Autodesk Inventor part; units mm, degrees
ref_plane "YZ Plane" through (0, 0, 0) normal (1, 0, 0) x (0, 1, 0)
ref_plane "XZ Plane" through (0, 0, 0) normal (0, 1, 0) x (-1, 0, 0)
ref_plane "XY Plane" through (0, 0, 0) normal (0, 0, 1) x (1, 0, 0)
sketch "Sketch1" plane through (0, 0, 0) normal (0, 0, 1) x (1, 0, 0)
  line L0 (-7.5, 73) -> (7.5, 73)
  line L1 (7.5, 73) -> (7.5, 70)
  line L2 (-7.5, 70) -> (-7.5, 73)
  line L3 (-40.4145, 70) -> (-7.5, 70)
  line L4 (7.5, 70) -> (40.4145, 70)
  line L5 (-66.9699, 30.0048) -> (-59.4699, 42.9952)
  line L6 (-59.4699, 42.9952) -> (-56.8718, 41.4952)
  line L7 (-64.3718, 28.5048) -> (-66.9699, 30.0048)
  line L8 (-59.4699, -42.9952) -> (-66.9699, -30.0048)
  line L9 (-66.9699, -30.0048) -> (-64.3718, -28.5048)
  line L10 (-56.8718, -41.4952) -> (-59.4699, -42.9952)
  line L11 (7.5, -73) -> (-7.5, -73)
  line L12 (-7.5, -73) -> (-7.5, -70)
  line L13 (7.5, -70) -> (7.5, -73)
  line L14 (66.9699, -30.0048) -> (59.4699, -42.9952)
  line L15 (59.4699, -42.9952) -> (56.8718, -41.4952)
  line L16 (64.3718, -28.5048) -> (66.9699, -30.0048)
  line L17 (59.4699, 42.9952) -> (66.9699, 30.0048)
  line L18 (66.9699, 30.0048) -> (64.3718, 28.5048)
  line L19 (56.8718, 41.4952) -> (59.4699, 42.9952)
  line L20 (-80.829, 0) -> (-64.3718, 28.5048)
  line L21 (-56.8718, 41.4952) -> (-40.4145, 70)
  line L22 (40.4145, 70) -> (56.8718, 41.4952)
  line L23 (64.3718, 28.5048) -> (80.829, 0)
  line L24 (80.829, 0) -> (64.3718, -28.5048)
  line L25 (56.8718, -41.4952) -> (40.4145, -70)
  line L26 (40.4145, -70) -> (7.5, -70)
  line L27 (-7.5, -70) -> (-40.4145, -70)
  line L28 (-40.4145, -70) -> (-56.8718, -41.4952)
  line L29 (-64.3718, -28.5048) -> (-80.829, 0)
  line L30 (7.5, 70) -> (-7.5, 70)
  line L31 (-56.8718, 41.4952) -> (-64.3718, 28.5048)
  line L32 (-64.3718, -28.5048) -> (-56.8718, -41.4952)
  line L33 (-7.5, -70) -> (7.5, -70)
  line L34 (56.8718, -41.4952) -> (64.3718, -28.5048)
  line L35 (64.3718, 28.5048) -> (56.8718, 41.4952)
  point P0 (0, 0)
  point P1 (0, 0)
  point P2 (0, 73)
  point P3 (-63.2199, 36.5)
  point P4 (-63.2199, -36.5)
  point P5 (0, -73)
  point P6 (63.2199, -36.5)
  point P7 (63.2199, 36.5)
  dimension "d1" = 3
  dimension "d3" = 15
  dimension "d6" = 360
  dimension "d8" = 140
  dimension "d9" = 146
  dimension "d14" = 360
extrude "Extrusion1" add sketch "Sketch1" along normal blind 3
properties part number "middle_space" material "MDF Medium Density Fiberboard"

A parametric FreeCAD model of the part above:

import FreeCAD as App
import Part
import Sketcher
from FreeCAD import Vector
Q = App.Units.Quantity

doc = App.newDocument("Part")
params = doc.addObject("Spreadsheet::Sheet", "Params")
for row, (alias, value) in enumerate([
    ("sketch1_width", "15 mm"),
    ("sketch1_height", "3 mm"),
    ("sketch1_length", "3 mm"),
    ("sketch1_length2", "15 mm"),
    ("pad1_length", "3 mm"),
], start=1):
    params.set(f"A{row}", alias)
    params.set(f"B{row}", "=" + value)
    params.setAlias(f"B{row}", alias)

body = doc.addObject("PartDesign::Body", "Body")

# Sketch on XY plane
sketch1 = doc.addObject("Sketcher::SketchObject", "Sketch")
body.addObject(sketch1)
sketch1.AttachmentSupport = (doc.XY_Plane, [""])
sketch1.MapMode = "FlatFace"
sketch1.addGeometry([
    Part.LineSegment(Vector(7.5, 73, 0), Vector(-7.5, 73, 0)),  # 0
    Part.LineSegment(Vector(-7.5, 73, 0), Vector(-7.5, 70, 0)),  # 1
    Part.LineSegment(Vector(-7.5, 70, 0), Vector(-40.4, 70, 0)),  # 2
    Part.LineSegment(Vector(-40.4, 70, 0), Vector(-56.9, 41.5, 0)),  # 3
    Part.LineSegment(Vector(-56.9, 41.5, 0), Vector(-59.5, 43, 0)),  # 4
    Part.LineSegment(Vector(-59.5, 43, 0), Vector(-67, 30, 0)),  # 5
    Part.LineSegment(Vector(-67, 30, 0), Vector(-64.4, 28.5, 0)),  # 6
    Part.LineSegment(Vector(-64.4, 28.5, 0), Vector(-80.8, 0, 0)),  # 7
    Part.LineSegment(Vector(-80.8, 0, 0), Vector(-64.4, -28.5, 0)),  # 8
    Part.LineSegment(Vector(-64.4, -28.5, 0), Vector(-67, -30, 0)),  # 9
    Part.LineSegment(Vector(-67, -30, 0), Vector(-59.5, -43, 0)),  # 10
    Part.LineSegment(Vector(-59.5, -43, 0), Vector(-56.9, -41.5, 0)),  # 11
    Part.LineSegment(Vector(-56.9, -41.5, 0), Vector(-40.4, -70, 0)),  # 12
    Part.LineSegment(Vector(-40.4, -70, 0), Vector(-7.5, -70, 0)),  # 13
    Part.LineSegment(Vector(-7.5, -70, 0), Vector(-7.5, -73, 0)),  # 14
    Part.LineSegment(Vector(-7.5, -73, 0), Vector(7.5, -73, 0)),  # 15
    Part.LineSegment(Vector(7.5, -73, 0), Vector(7.5, -70, 0)),  # 16
    Part.LineSegment(Vector(7.5, -70, 0), Vector(40.4, -70, 0)),  # 17
    Part.LineSegment(Vector(40.4, -70, 0), Vector(56.9, -41.5, 0)),  # 18
    Part.LineSegment(Vector(56.9, -41.5, 0), Vector(59.5, -43, 0)),  # 19
    Part.LineSegment(Vector(59.5, -43, 0), Vector(67, -30, 0)),  # 20
    Part.LineSegment(Vector(67, -30, 0), Vector(64.4, -28.5, 0)),  # 21
    Part.LineSegment(Vector(64.4, -28.5, 0), Vector(80.8, 0, 0)),  # 22
    Part.LineSegment(Vector(80.8, 0, 0), Vector(64.4, 28.5, 0)),  # 23
    Part.LineSegment(Vector(64.4, 28.5, 0), Vector(67, 30, 0)),  # 24
    Part.LineSegment(Vector(67, 30, 0), Vector(59.5, 43, 0)),  # 25
    Part.LineSegment(Vector(59.5, 43, 0), Vector(56.9, 41.5, 0)),  # 26
    Part.LineSegment(Vector(56.9, 41.5, 0), Vector(40.4, 70, 0)),  # 27
    Part.LineSegment(Vector(40.4, 70, 0), Vector(7.5, 70, 0)),  # 28
    Part.LineSegment(Vector(7.5, 70, 0), Vector(7.5, 73, 0)),  # 29
], False)
sketch1.addConstraint([
    Sketcher.Constraint("Coincident", 0, 2, 1, 1),
    Sketcher.Constraint("Coincident", 1, 2, 2, 1),
    Sketcher.Constraint("Coincident", 2, 2, 3, 1),
    Sketcher.Constraint("Coincident", 3, 2, 4, 1),
    Sketcher.Constraint("Coincident", 4, 2, 5, 1),
    Sketcher.Constraint("Coincident", 5, 2, 6, 1),
    Sketcher.Constraint("Coincident", 6, 2, 7, 1),
    Sketcher.Constraint("Coincident", 7, 2, 8, 1),
    Sketcher.Constraint("Coincident", 8, 2, 9, 1),
    Sketcher.Constraint("Coincident", 9, 2, 10, 1),
    Sketcher.Constraint("Coincident", 10, 2, 11, 1),
    Sketcher.Constraint("Coincident", 11, 2, 12, 1),
    Sketcher.Constraint("Coincident", 12, 2, 13, 1),
    Sketcher.Constraint("Coincident", 13, 2, 14, 1),
    Sketcher.Constraint("Coincident", 14, 2, 15, 1),
    Sketcher.Constraint("Coincident", 15, 2, 16, 1),
    Sketcher.Constraint("Coincident", 16, 2, 17, 1),
    Sketcher.Constraint("Coincident", 17, 2, 18, 1),
    Sketcher.Constraint("Coincident", 18, 2, 19, 1),
    Sketcher.Constraint("Coincident", 19, 2, 20, 1),
    Sketcher.Constraint("Coincident", 20, 2, 21, 1),
    Sketcher.Constraint("Coincident", 21, 2, 22, 1),
    Sketcher.Constraint("Coincident", 22, 2, 23, 1),
    Sketcher.Constraint("Coincident", 23, 2, 24, 1),
    Sketcher.Constraint("Coincident", 24, 2, 25, 1),
    Sketcher.Constraint("Coincident", 25, 2, 26, 1),
    Sketcher.Constraint("Coincident", 26, 2, 27, 1),
    Sketcher.Constraint("Coincident", 27, 2, 28, 1),
    Sketcher.Constraint("Coincident", 28, 2, 29, 1),
    Sketcher.Constraint("Coincident", 29, 2, 0, 1),
    Sketcher.Constraint("Horizontal", 0),
    Sketcher.Constraint("Vertical", 1),
    Sketcher.Constraint("Horizontal", 2),
    Sketcher.Constraint("Horizontal", 13),
    Sketcher.Constraint("Vertical", 14),
    Sketcher.Constraint("Horizontal", 15),
    Sketcher.Constraint("Vertical", 16),
    Sketcher.Constraint("Horizontal", 17),
    Sketcher.Constraint("Horizontal", 28),
    Sketcher.Constraint("Vertical", 29),
    Sketcher.Constraint("Symmetric", 0, 2, 15, 2, -1, 1),
    Sketcher.Constraint("Symmetric", 2, 2, 17, 2, -1, 1),
    Sketcher.Constraint("Symmetric", 3, 2, 18, 2, -1, 1),
    Sketcher.Constraint("Symmetric", 4, 2, 19, 2, -1, 1),
    Sketcher.Constraint("Symmetric", 5, 2, 20, 2, -1, 1),
    Sketcher.Constraint("Symmetric", 6, 2, 21, 2, -1, 1),
    Sketcher.Constraint("Symmetric", 7, 2, 22, 2, -1, 1),
    Sketcher.Constraint("Symmetric", 8, 2, 23, 2, -1, 1),
    Sketcher.Constraint("Symmetric", 9, 2, 24, 2, -1, 1),
    Sketcher.Constraint("Symmetric", 10, 2, 25, 2, -1, 1),
    Sketcher.Constraint("Symmetric", 11, 2, 26, 2, -1, 1),
    Sketcher.Constraint("Symmetric", 12, 2, 27, 2, -1, 1),
    Sketcher.Constraint("Symmetric", 13, 2, 16, 2, -2),
    Sketcher.Constraint("Symmetric", 11, 2, 18, 2, -2),
    Sketcher.Constraint("Symmetric", 10, 2, 19, 2, -2),
    Sketcher.Constraint("Symmetric", 9, 2, 20, 2, -2),
    Sketcher.Constraint("Symmetric", 8, 2, 21, 2, -2),
    Sketcher.Constraint("PointOnObject", 7, 2, -1),
    Sketcher.Constraint("Perpendicular", 3, 4),
    Sketcher.Constraint("Perpendicular", 4, 5),
    Sketcher.Constraint("Perpendicular", 5, 6),
    Sketcher.Constraint("Perpendicular", 6, 7),
    Sketcher.Constraint("Perpendicular", 11, 12),
    Sketcher.Constraint("Vertical", 16, 2, 28, 2),
    Sketcher.Constraint("Equal", 4, 6),
    Sketcher.Constraint("Equal", 3, 7),
    Sketcher.Constraint("DistanceX", 0, 2, 0, 1, Q("15 mm")),
    Sketcher.Constraint("DistanceY", 1, 2, 1, 1, Q("3 mm")),
    Sketcher.Constraint("Distance", 4, Q("3 mm")),
    Sketcher.Constraint("Distance", 5, Q("15 mm")),
    Sketcher.Constraint("Angle", 3, Q("-120 deg")),
    Sketcher.Constraint("DistanceY", -1, 1, 0, 2, Q("73 mm")),
    Sketcher.Constraint("DistanceX", 4, 2, -1, 1, Q("59.47 mm")),
])
sketch1.setExpression("Constraints[66]", "Params.sketch1_width")
sketch1.setExpression("Constraints[67]", "Params.sketch1_height")
sketch1.setExpression("Constraints[68]", "Params.sketch1_length")
sketch1.setExpression("Constraints[69]", "Params.sketch1_length2")
pad1 = doc.addObject("PartDesign::Pad", "Pad")
body.addObject(pad1)
pad1.Profile = sketch1
pad1.setExpression("Length", "Params.pad1_length")

doc.recompute()
